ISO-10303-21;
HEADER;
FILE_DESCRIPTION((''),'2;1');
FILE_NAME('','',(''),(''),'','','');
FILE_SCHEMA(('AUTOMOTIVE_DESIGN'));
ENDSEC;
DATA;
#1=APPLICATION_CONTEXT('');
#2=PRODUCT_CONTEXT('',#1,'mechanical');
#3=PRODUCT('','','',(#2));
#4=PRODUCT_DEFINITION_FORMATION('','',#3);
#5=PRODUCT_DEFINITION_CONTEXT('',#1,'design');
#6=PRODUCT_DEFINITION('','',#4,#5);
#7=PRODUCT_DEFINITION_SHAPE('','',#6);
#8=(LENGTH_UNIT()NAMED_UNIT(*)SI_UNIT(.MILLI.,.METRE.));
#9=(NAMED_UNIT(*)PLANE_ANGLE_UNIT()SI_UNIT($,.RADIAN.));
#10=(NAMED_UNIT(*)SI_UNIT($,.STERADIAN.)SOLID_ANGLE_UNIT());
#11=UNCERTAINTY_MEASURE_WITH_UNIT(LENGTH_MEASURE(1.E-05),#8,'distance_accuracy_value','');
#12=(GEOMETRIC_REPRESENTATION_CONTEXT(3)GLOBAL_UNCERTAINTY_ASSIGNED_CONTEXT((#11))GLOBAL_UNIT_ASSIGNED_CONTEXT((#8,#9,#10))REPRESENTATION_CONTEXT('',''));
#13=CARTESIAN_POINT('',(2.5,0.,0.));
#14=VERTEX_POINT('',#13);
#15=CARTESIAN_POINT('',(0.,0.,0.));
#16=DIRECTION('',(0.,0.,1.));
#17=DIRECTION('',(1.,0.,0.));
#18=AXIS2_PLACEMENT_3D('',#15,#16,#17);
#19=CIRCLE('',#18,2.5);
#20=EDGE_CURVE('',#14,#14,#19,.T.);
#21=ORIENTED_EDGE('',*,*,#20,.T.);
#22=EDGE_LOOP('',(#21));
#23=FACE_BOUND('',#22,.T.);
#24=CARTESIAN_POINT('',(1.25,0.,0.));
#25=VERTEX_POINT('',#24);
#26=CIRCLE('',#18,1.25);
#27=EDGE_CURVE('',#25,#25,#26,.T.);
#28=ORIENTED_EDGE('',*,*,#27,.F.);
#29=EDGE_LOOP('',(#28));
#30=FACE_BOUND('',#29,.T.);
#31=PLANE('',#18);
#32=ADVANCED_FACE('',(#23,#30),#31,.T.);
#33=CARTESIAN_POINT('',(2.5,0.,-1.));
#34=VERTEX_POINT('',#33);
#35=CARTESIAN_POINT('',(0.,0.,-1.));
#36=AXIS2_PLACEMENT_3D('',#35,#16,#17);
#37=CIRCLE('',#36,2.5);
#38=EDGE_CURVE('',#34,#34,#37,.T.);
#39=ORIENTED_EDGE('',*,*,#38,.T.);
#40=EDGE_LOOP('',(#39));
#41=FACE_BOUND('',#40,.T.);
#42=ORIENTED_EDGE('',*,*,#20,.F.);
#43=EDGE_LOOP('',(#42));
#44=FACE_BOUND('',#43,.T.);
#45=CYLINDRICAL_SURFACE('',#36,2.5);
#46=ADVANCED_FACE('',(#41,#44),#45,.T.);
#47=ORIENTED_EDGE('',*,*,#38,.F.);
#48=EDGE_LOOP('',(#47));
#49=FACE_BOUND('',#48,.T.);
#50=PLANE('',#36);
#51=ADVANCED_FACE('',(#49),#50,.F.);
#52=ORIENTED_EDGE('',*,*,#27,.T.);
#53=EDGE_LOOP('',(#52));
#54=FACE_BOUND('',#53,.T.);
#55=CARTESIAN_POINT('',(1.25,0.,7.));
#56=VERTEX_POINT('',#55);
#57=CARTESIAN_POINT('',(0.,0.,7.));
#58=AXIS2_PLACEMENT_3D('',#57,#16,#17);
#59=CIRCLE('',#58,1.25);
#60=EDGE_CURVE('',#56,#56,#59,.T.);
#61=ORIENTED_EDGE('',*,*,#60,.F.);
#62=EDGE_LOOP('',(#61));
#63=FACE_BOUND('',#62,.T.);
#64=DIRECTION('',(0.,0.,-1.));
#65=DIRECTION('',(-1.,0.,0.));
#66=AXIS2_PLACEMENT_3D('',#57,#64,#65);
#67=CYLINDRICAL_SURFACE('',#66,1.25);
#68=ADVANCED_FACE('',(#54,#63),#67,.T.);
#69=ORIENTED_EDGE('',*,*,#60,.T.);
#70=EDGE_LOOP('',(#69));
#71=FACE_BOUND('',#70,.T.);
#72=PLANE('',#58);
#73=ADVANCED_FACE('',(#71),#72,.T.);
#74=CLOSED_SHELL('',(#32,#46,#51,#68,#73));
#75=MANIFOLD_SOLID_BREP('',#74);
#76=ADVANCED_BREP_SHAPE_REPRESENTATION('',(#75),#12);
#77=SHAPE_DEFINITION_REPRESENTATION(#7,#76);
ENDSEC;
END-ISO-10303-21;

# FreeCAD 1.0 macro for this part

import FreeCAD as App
import Part
import Sketcher

doc = App.newDocument("Part")
body = doc.addObject("PartDesign::Body", "Body")

# Sketch on XY plane
sketch1 = doc.addObject("Sketcher::SketchObject", "Sketch")
body.addObject(sketch1)
sketch1.AttachmentSupport = (doc.XY_Plane, [""])
sketch1.MapMode = "FlatFace"
sketch1.addGeometry(Part.Circle(App.Vector(0, 0, 0), App.Vector(0, 0, 1), 1.25), False)
sketch1.addConstraint([
    Sketcher.Constraint("Coincident", 0, 3, -1, 1),
    Sketcher.Constraint("Diameter", 0, 2.5),
])
pad1 = doc.addObject("PartDesign::Pad", "Pad")
body.addObject(pad1)
pad1.Profile = sketch1
pad1.Length = 7

# Sketch on XY plane
sketch2 = doc.addObject("Sketcher::SketchObject", "Sketch001")
body.addObject(sketch2)
sketch2.AttachmentSupport = (doc.XY_Plane, [""])
sketch2.MapMode = "FlatFace"
sketch2.addGeometry(Part.Circle(App.Vector(0, 0, 0), App.Vector(0, 0, 1), 2.5), False)
sketch2.addConstraint([
    Sketcher.Constraint("Coincident", 0, 3, -1, 1),
    Sketcher.Constraint("Diameter", 0, 5.0),
])
pad2 = doc.addObject("PartDesign::Pad", "Pad001")
body.addObject(pad2)
pad2.Profile = sketch2
pad2.Length = 1
pad2.Reversed = True

doc.recompute()
